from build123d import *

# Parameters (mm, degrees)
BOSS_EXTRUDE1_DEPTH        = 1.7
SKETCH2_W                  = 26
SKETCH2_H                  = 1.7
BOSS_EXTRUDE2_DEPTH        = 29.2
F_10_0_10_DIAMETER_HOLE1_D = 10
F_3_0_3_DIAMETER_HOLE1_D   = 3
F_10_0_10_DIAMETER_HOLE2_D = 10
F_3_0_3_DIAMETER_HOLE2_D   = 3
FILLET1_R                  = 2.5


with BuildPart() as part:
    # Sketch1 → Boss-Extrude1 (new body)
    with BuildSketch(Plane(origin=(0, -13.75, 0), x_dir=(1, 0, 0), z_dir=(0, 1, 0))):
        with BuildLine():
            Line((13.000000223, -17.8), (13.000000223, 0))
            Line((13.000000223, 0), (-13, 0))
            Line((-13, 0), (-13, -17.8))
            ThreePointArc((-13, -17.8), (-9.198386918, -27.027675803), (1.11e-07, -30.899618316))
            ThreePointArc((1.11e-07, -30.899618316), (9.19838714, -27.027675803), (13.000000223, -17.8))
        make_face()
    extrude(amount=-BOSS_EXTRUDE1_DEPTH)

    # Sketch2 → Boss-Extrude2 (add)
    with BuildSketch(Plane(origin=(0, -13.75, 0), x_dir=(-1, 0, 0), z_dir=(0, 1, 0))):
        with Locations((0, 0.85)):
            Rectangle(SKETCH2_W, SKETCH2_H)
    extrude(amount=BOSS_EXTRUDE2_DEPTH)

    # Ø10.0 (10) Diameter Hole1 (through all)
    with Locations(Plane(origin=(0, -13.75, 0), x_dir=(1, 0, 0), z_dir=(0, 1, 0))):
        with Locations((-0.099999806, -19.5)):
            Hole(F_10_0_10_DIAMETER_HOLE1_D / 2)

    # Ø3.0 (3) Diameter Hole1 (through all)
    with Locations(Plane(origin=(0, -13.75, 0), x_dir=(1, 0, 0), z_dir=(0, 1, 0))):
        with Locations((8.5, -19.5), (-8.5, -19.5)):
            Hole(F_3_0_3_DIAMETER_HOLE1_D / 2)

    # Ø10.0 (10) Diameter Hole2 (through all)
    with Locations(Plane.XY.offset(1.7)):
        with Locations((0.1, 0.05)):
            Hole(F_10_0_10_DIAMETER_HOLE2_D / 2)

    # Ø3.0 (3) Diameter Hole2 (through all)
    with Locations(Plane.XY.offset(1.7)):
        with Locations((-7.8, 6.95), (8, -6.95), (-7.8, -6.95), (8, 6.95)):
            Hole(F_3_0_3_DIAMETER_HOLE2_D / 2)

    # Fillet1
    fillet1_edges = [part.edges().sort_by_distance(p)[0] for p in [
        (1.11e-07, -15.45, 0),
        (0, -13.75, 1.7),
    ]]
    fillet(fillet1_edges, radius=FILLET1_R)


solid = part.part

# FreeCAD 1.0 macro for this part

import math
import FreeCAD as App
import Part
import Sketcher

V = App.Vector


def edges_at(feature, points):
    """Names of the edges that pass closest to the given points."""
    edges = feature.Shape.Edges
    near = lambda p: min(range(len(edges)), key=lambda i: edges[i].distToShape(Part.Vertex(*p))[0])
    return sorted({f"Edge{near(p) + 1}" for p in points})


def add_polygon(sketch, points):
    """Adds a closed chain of lines whose ends are joined by coincident constraints."""
    first, n = sketch.GeometryCount, len(points)
    for a, b in zip(points, points[1:] + points[:1]):
        sketch.addGeometry(Part.LineSegment(App.Vector(*a, 0), App.Vector(*b, 0)), False)
    for i in range(n):
        sketch.addConstraint(Sketcher.Constraint("Coincident", first + i, 2, first + (i + 1) % n, 1))

doc = App.newDocument("Part")
params = doc.addObject("Spreadsheet::Sheet", "Params")
for row, (alias, value) in enumerate([
    ("sketch1_radius", "13.1 mm"),
    ("sketch1_width", "26 mm"),
    ("sketch1_height", "17.8 mm"),
    ("pad1_length", "1.7 mm"),
    ("sketch2_width", "26 mm"),
    ("sketch2_height", "1.7 mm"),
    ("pad2_length", "29.2 mm"),
    ("sketch3_diameter", "10 mm"),
    ("hole_diameter", "10 mm"),
    ("sketch4_diameter", "3 mm"),
    ("hole2_diameter", "3 mm"),
    ("sketch5_diameter", "10 mm"),
    ("hole3_diameter", "10 mm"),
    ("sketch6_diameter", "3 mm"),
    ("hole4_diameter", "3 mm"),
    ("fillet_radius", "2.5 mm"),
], start=1):
    params.set(f"A{row}", alias)
    params.set(f"B{row}", "=" + value)
    params.setAlias(f"B{row}", alias)

body = doc.addObject("PartDesign::Body", "Body")

sketch1 = body.newObject("Sketcher::SketchObject", "Sketch")
sketch1.AttachmentSupport = (doc.getObject("XZ_Plane"), [""])
sketch1.MapMode = "FlatFace"
sketch1.AttachmentOffset = App.Placement(V(0, 0, 13.75), App.Rotation())
sketch1.addGeometry(Part.LineSegment(V(13, 17.8, 0), V(13, 0, 0)), False)
sketch1.addGeometry(Part.LineSegment(V(13, 0, 0), V(-13, 0, 0)), False)
sketch1.addGeometry(Part.LineSegment(V(-13, 0, 0), V(-13, 17.8, 0)), False)
sketch1.addGeometry(Part.ArcOfCircle(Part.Circle(V(0.1, 17.8, 0), V(0, 0, 1), 13.1), math.radians(90.437376), math.radians(180)), False)
sketch1.addGeometry(Part.ArcOfCircle(Part.Circle(V(-0.1, 17.8, 0), V(0, 0, 1), 13.1), math.radians(0), math.radians(89.562624)), False)
sketch1.addConstraint(Sketcher.Constraint("Coincident", 0, 2, 1, 1))
sketch1.addConstraint(Sketcher.Constraint("Coincident", 1, 2, 2, 1))
sketch1.addConstraint(Sketcher.Constraint("Tangent", 2, 2, 3, 2))
sketch1.addConstraint(Sketcher.Constraint("Coincident", 3, 1, 4, 2))
sketch1.addConstraint(Sketcher.Constraint("Tangent", 4, 1, 0, 1))
sketch1.addConstraint(Sketcher.Constraint("Vertical", 0))
sketch1.addConstraint(Sketcher.Constraint("Horizontal", 1))
sketch1.addConstraint(Sketcher.Constraint("Vertical", 2))
sketch1.addConstraint(Sketcher.Constraint("Equal", 3, 4))
sketch1.addConstraint(Sketcher.Constraint("Symmetric", 0, 2, 1, 2, -1, 1))
sketch1.addConstraint(Sketcher.Constraint("PointOnObject", 3, 1, -2))
sketch1.addConstraint(Sketcher.Constraint("Radius", 3, 13.1))
sketch1.addConstraint(Sketcher.Constraint("DistanceX", 1, 2, 1, 1, 26.0))
sketch1.addConstraint(Sketcher.Constraint("DistanceY", 0, 2, 0, 1, 17.8))
sketch1.setExpression("Constraints[11]", "Params.sketch1_radius")
sketch1.setExpression("Constraints[12]", "Params.sketch1_width")
sketch1.setExpression("Constraints[13]", "Params.sketch1_height")
pad1 = body.newObject("PartDesign::Pad", "Pad")
pad1.Profile = sketch1
pad1.setExpression("Length", "Params.pad1_length")

sketch2 = body.newObject("Sketcher::SketchObject", "Sketch001")
sketch2.AttachmentSupport = (doc.getObject("XZ_Plane"), [""])
sketch2.MapMode = "FlatFace"
sketch2.AttachmentOffset = App.Placement(V(0, 0, 13.75), App.Rotation())
add_polygon(sketch2, [(13, 1.7), (13, 0), (-13, 0), (-13, 1.7)])
sketch2.addConstraint(Sketcher.Constraint("Vertical", 0))
sketch2.addConstraint(Sketcher.Constraint("Horizontal", 1))
sketch2.addConstraint(Sketcher.Constraint("Vertical", 2))
sketch2.addConstraint(Sketcher.Constraint("Horizontal", 3))
sketch2.addConstraint(Sketcher.Constraint("Symmetric", 0, 2, 1, 2, -1, 1))
sketch2.addConstraint(Sketcher.Constraint("DistanceX", 1, 2, 1, 1, 26.0))
sketch2.addConstraint(Sketcher.Constraint("DistanceY", 0, 2, 0, 1, 1.7))
sketch2.setExpression("Constraints[9]", "Params.sketch2_width")
sketch2.setExpression("Constraints[10]", "Params.sketch2_height")
pad2 = body.newObject("PartDesign::Pad", "Pad001")
pad2.Profile = sketch2
pad2.setExpression("Length", "Params.pad2_length")
pad2.Reversed = True

sketch3 = body.newObject("Sketcher::SketchObject", "Sketch002")
sketch3.AttachmentSupport = (doc.getObject("XZ_Plane"), [""])
sketch3.MapMode = "FlatFace"
sketch3.AttachmentOffset = App.Placement(V(0, 0, 13.75), App.Rotation())
sketch3.addGeometry(Part.Circle(V(-0.1, 19.5, 0), V(0, 0, 1), 5), False)
sketch3.addConstraint(Sketcher.Constraint("Diameter", 0, 10.0))
sketch3.addConstraint(Sketcher.Constraint("DistanceX", 0, 3, -1, 1, 0.1))
sketch3.addConstraint(Sketcher.Constraint("DistanceY", -1, 1, 0, 3, 19.5))
sketch3.setExpression("Constraints[0]", "Params.sketch3_diameter")
doc.recompute()
hole = body.newObject("PartDesign::Hole", "Hole")
hole.Profile = sketch3
hole.ThreadType = "None"
hole.setExpression("Diameter", "Params.hole_diameter")
hole.DepthType = "ThroughAll"
hole.Reversed = True

sketch4 = body.newObject("Sketcher::SketchObject", "Sketch003")
sketch4.AttachmentSupport = (doc.getObject("XZ_Plane"), [""])
sketch4.MapMode = "FlatFace"
sketch4.AttachmentOffset = App.Placement(V(0, 0, 13.75), App.Rotation())
sketch4.addGeometry(Part.Circle(V(8.5, 19.5, 0), V(0, 0, 1), 1.5), False)
sketch4.addGeometry(Part.Circle(V(-8.5, 19.5, 0), V(0, 0, 1), 1.5), False)
sketch4.addConstraint(Sketcher.Constraint("Equal", 0, 1))
sketch4.addConstraint(Sketcher.Constraint("Symmetric", 0, 3, 1, 3, -2))
sketch4.addConstraint(Sketcher.Constraint("Diameter", 0, 3.0))
sketch4.addConstraint(Sketcher.Constraint("DistanceX", 1, 3, 0, 3, 17.0))
sketch4.addConstraint(Sketcher.Constraint("DistanceY", -1, 1, 0, 3, 19.5))
sketch4.setExpression("Constraints[2]", "Params.sketch4_diameter")
doc.recompute()
hole2 = body.newObject("PartDesign::Hole", "Hole001")
hole2.Profile = sketch4
hole2.ThreadType = "None"
hole2.setExpression("Diameter", "Params.hole2_diameter")
hole2.DepthType = "ThroughAll"
hole2.Reversed = True

sketch5 = body.newObject("Sketcher::SketchObject", "Sketch004")
sketch5.AttachmentSupport = (doc.getObject("XY_Plane"), [""])
sketch5.MapMode = "FlatFace"
sketch5.AttachmentOffset = App.Placement(V(0, 0, 1.7), App.Rotation())
sketch5.addGeometry(Part.Circle(V(0.1, 0.05, 0), V(0, 0, 1), 5), False)
sketch5.addConstraint(Sketcher.Constraint("Diameter", 0, 10.0))
sketch5.addConstraint(Sketcher.Constraint("DistanceX", -1, 1, 0, 3, 0.1))
sketch5.addConstraint(Sketcher.Constraint("DistanceY", -1, 1, 0, 3, 0.05))
sketch5.setExpression("Constraints[0]", "Params.sketch5_diameter")
doc.recompute()
hole3 = body.newObject("PartDesign::Hole", "Hole002")
hole3.Profile = sketch5
hole3.ThreadType = "None"
hole3.setExpression("Diameter", "Params.hole3_diameter")
hole3.DepthType = "ThroughAll"

sketch6 = body.newObject("Sketcher::SketchObject", "Sketch005")
sketch6.AttachmentSupport = (doc.getObject("XY_Plane"), [""])
sketch6.MapMode = "FlatFace"
sketch6.AttachmentOffset = App.Placement(V(0, 0, 1.7), App.Rotation())
sketch6.addGeometry(Part.Circle(V(-7.8, 6.95, 0), V(0, 0, 1), 1.5), False)
sketch6.addGeometry(Part.Circle(V(8, -6.95, 0), V(0, 0, 1), 1.5), False)
sketch6.addGeometry(Part.Circle(V(-7.8, -6.95, 0), V(0, 0, 1), 1.5), False)
sketch6.addGeometry(Part.Circle(V(8, 6.95, 0), V(0, 0, 1), 1.5), False)
sketch6.addConstraint(Sketcher.Constraint("Equal", 0, 1))
sketch6.addConstraint(Sketcher.Constraint("Equal", 1, 2))
sketch6.addConstraint(Sketcher.Constraint("Equal", 2, 3))
sketch6.addConstraint(Sketcher.Constraint("Symmetric", 0, 3, 2, 3, -1))
sketch6.addConstraint(Sketcher.Constraint("Symmetric", 1, 3, 3, 3, -1))
sketch6.addConstraint(Sketcher.Constraint("Horizontal", 1, 3, 2, 3))
sketch6.addConstraint(Sketcher.Constraint("Diameter", 0, 3.0))
sketch6.addConstraint(Sketcher.Constraint("DistanceX", -1, 1, 1, 3, 8.0))
sketch6.addConstraint(Sketcher.Constraint("DistanceX", 0, 3, -1, 1, 7.8))
sketch6.addConstraint(Sketcher.Constraint("DistanceY", 1, 3, 0, 3, 13.9))
sketch6.setExpression("Constraints[6]", "Params.sketch6_diameter")
doc.recompute()
hole4 = body.newObject("PartDesign::Hole", "Hole003")
hole4.Profile = sketch6
hole4.ThreadType = "None"
hole4.setExpression("Diameter", "Params.hole4_diameter")
hole4.DepthType = "ThroughAll"
doc.recompute()

fillet = body.newObject("PartDesign::Fillet", "Fillet")
fillet.Base = (hole4, edges_at(hole4, [(0, -15.45, 0), (0, -13.75, 1.7)]))
fillet.setExpression("Radius", "Params.fillet_radius")

doc.recompute()
